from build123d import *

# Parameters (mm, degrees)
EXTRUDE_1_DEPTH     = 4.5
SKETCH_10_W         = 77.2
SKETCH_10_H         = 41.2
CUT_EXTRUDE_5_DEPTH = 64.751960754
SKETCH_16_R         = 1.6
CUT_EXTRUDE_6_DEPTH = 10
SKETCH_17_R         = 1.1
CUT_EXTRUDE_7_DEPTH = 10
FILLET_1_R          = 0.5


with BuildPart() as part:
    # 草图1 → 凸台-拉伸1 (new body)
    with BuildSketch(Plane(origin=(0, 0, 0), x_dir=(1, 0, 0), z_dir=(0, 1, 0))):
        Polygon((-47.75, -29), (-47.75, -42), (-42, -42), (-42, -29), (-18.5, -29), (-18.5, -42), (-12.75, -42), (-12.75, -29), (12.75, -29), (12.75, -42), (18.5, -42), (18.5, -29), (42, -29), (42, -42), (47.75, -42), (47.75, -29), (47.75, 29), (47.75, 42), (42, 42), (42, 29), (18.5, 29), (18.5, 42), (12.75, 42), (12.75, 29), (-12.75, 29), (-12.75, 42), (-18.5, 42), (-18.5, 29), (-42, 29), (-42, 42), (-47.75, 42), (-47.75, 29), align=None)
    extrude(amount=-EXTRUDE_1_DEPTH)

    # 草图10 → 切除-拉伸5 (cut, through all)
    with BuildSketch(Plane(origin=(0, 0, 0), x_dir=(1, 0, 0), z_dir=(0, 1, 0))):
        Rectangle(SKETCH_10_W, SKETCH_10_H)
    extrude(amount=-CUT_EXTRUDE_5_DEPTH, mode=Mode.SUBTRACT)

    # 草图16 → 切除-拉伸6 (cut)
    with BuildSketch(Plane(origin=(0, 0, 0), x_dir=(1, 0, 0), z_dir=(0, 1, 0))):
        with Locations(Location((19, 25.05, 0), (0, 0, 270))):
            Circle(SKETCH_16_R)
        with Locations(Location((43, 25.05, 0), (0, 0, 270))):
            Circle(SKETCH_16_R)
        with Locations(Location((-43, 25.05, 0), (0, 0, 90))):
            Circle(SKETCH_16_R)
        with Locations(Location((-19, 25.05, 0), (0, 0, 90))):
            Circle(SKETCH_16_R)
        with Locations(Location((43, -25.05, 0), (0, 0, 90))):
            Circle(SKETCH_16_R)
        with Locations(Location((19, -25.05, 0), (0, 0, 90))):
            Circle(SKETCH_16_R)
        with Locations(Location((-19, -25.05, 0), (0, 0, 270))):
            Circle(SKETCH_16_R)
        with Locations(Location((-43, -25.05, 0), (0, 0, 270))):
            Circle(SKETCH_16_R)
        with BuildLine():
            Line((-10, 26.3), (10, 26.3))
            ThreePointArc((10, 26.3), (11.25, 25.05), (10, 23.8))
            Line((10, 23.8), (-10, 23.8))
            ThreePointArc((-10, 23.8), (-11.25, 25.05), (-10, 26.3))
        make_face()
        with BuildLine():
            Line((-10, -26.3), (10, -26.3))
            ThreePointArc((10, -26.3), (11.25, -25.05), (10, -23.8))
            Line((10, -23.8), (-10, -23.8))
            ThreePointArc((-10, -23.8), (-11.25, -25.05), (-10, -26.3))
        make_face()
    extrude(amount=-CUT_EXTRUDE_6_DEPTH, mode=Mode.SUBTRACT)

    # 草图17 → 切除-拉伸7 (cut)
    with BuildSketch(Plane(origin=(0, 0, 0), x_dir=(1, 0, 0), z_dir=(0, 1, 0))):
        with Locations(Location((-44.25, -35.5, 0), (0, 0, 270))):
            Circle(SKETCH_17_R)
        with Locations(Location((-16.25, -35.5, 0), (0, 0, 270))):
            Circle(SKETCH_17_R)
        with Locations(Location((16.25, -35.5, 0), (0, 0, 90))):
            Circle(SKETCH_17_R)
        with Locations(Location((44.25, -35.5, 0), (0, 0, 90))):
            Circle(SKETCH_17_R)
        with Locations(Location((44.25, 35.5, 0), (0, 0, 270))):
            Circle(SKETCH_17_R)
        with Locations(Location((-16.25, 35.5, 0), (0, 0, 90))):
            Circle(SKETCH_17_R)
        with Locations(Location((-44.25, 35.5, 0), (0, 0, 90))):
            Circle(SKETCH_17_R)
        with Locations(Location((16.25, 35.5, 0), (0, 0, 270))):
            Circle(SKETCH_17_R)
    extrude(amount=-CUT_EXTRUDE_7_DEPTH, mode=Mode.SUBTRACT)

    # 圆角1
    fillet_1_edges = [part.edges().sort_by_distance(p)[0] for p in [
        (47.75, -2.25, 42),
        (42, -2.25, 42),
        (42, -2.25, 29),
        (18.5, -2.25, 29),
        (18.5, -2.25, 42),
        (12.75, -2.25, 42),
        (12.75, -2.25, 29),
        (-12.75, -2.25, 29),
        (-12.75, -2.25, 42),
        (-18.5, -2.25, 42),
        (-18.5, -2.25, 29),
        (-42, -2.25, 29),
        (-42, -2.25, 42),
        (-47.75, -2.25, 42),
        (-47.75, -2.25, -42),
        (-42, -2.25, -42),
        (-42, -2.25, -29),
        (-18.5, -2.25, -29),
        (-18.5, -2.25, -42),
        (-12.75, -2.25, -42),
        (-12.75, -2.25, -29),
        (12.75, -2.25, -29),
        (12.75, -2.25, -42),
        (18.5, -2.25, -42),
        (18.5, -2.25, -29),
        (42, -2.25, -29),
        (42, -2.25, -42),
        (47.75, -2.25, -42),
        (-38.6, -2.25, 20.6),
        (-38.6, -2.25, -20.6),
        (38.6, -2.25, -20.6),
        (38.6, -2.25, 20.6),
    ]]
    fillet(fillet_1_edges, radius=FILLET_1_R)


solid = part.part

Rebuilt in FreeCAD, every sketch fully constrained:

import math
import FreeCAD as App
import Part
import Sketcher

V = App.Vector


def edges_at(feature, points):
    """Names of the edges that pass closest to the given points."""
    edges = feature.Shape.Edges
    near = lambda p: min(range(len(edges)), key=lambda i: edges[i].distToShape(Part.Vertex(*p))[0])
    return sorted({f"Edge{near(p) + 1}" for p in points})


def add_polygon(sketch, points):
    """Adds a closed chain of lines whose ends are joined by coincident constraints."""
    first, n = sketch.GeometryCount, len(points)
    for a, b in zip(points, points[1:] + points[:1]):
        sketch.addGeometry(Part.LineSegment(App.Vector(*a, 0), App.Vector(*b, 0)), False)
    for i in range(n):
        sketch.addConstraint(Sketcher.Constraint("Coincident", first + i, 2, first + (i + 1) % n, 1))

doc = App.newDocument("Part")
body = doc.addObject("PartDesign::Body", "Body")

sketch1 = body.newObject("Sketcher::SketchObject", "Sketch")
sketch1.AttachmentSupport = (doc.getObject("XZ_Plane"), [""])
sketch1.MapMode = "FlatFace"
add_polygon(sketch1, [(-47.75, 42), (-42, 42), (-42, 29), (-18.5, 29), (-18.5, 42), (-12.75, 42), (-12.75, 29), (12.75, 29), (12.75, 42), (18.5, 42), (18.5, 29), (42, 29), (42, 42), (47.75, 42), (47.75, -42), (42, -42), (42, -29), (18.5, -29), (18.5, -42), (12.75, -42), (12.75, -29), (-12.75, -29), (-12.75, -42), (-18.5, -42), (-18.5, -29), (-42, -29), (-42, -42), (-47.75, -42)])
sketch1.addConstraint([
    Sketcher.Constraint("Horizontal", 0),
    Sketcher.Constraint("Vertical", 1),
    Sketcher.Constraint("Horizontal", 2),
    Sketcher.Constraint("Vertical", 3),
    Sketcher.Constraint("Horizontal", 4),
    Sketcher.Constraint("Vertical", 5),
    Sketcher.Constraint("Horizontal", 6),
    Sketcher.Constraint("Vertical", 7),
    Sketcher.Constraint("Horizontal", 8),
    Sketcher.Constraint("Vertical", 9),
    Sketcher.Constraint("Horizontal", 10),
    Sketcher.Constraint("Vertical", 11),
    Sketcher.Constraint("Horizontal", 12),
    Sketcher.Constraint("Vertical", 13),
    Sketcher.Constraint("Horizontal", 14),
    Sketcher.Constraint("Vertical", 15),
    Sketcher.Constraint("Horizontal", 16),
    Sketcher.Constraint("Vertical", 17),
    Sketcher.Constraint("Horizontal", 18),
    Sketcher.Constraint("Vertical", 19),
    Sketcher.Constraint("Horizontal", 20),
    Sketcher.Constraint("Vertical", 21),
    Sketcher.Constraint("Horizontal", 22),
    Sketcher.Constraint("Vertical", 23),
    Sketcher.Constraint("Horizontal", 24),
    Sketcher.Constraint("Vertical", 25),
    Sketcher.Constraint("Horizontal", 26),
    Sketcher.Constraint("Vertical", 27),
    Sketcher.Constraint("Symmetric", 0, 2, 14, 2, -1, 1),
    Sketcher.Constraint("Symmetric", 2, 2, 16, 2, -1, 1),
    Sketcher.Constraint("Symmetric", 4, 2, 18, 2, -1, 1),
    Sketcher.Constraint("Symmetric", 6, 2, 20, 2, -1, 1),
    Sketcher.Constraint("Symmetric", 8, 2, 22, 2, -1, 1),
    Sketcher.Constraint("Symmetric", 10, 2, 24, 2, -1, 1),
    Sketcher.Constraint("Symmetric", 12, 2, 26, 2, -1, 1),
    Sketcher.Constraint("Symmetric", 4, 2, 7, 2, -2),
    Sketcher.Constraint("Symmetric", 2, 2, 9, 2, -2),
    Sketcher.Constraint("Symmetric", 0, 2, 11, 2, -2),
    Sketcher.Constraint("Horizontal", 0, 2, 3, 2),
    Sketcher.Constraint("Horizontal", 2, 2, 5, 2),
    Sketcher.Constraint("Equal", 0, 4),
    Sketcher.Constraint("DistanceY", 1, 2, 1, 1, 13.0),
    Sketcher.Constraint("DistanceY", 13, 2, 13, 1, 84.0),
    Sketcher.Constraint("DistanceX", 2, 1, 2, 2, 23.5),
    Sketcher.Constraint("DistanceX", 6, 1, 6, 2, 25.5),
    Sketcher.Constraint("DistanceX", 0, 2, -1, 1, 42.0),
])
pad1 = body.newObject("PartDesign::Pad", "Pad")
pad1.Profile = sketch1
pad1.Length = 4.5

sketch2 = body.newObject("Sketcher::SketchObject", "Sketch001")
sketch2.AttachmentSupport = (doc.getObject("XZ_Plane"), [""])
sketch2.MapMode = "FlatFace"
add_polygon(sketch2, [(-38.6, -20.6), (-38.6, 20.6), (38.6, 20.6), (38.6, -20.6)])
sketch2.addConstraint([
    Sketcher.Constraint("Vertical", 0),
    Sketcher.Constraint("Horizontal", 1),
    Sketcher.Constraint("Vertical", 2),
    Sketcher.Constraint("Horizontal", 3),
    Sketcher.Constraint("Symmetric", 0, 2, 2, 2, -1, 1),
    Sketcher.Constraint("DistanceX", 1, 1, 1, 2, 77.2),
    Sketcher.Constraint("DistanceY", 0, 1, 0, 2, 41.2),
])
pocket1 = body.newObject("PartDesign::Pocket", "Pocket")
pocket1.Profile = sketch2
pocket1.Type = "ThroughAll"
pocket1.Reversed = True

sketch3 = body.newObject("Sketcher::SketchObject", "Sketch002")
sketch3.AttachmentSupport = (doc.getObject("XZ_Plane"), [""])
sketch3.MapMode = "FlatFace"
sketch3.addGeometry([
    Part.Circle(V(19, -25.05, 0), V(0, 0, 1), 1.6),
    Part.Circle(V(43, -25.05, 0), V(0, 0, 1), 1.6),
    Part.Circle(V(-43, -25.05, 0), V(0, 0, 1), 1.6),
    Part.Circle(V(-19, -25.05, 0), V(0, 0, 1), 1.6),
    Part.Circle(V(43, 25.05, 0), V(0, 0, 1), 1.6),
    Part.Circle(V(19, 25.05, 0), V(0, 0, 1), 1.6),
    Part.Circle(V(-19, 25.05, 0), V(0, 0, 1), 1.6),
    Part.Circle(V(-43, 25.05, 0), V(0, 0, 1), 1.6),
    Part.LineSegment(V(10, -26.3, 0), V(-10, -26.3, 0)),
    Part.ArcOfCircle(Part.Circle(V(-10, -25.05, 0), V(0, 0, 1), 1.25), math.radians(90), math.radians(270)),
    Part.LineSegment(V(-10, -23.8, 0), V(10, -23.8, 0)),
    Part.ArcOfCircle(Part.Circle(V(10, -25.05, 0), V(0, 0, 1), 1.25), math.radians(-90), math.radians(90)),
    Part.LineSegment(V(-10, 26.3, 0), V(10, 26.3, 0)),
    Part.ArcOfCircle(Part.Circle(V(10, 25.05, 0), V(0, 0, 1), 1.25), math.radians(-90), math.radians(90)),
    Part.LineSegment(V(10, 23.8, 0), V(-10, 23.8, 0)),
    Part.ArcOfCircle(Part.Circle(V(-10, 25.05, 0), V(0, 0, 1), 1.25), math.radians(90), math.radians(270)),
], False)
sketch3.addConstraint([
    Sketcher.Constraint("Tangent", 8, 2, 9, 2),
    Sketcher.Constraint("Tangent", 9, 1, 10, 1),
    Sketcher.Constraint("Tangent", 10, 2, 11, 2),
    Sketcher.Constraint("Tangent", 11, 1, 8, 1),
    Sketcher.Constraint("Tangent", 12, 2, 13, 2),
    Sketcher.Constraint("Tangent", 13, 1, 14, 1),
    Sketcher.Constraint("Tangent", 14, 2, 15, 2),
    Sketcher.Constraint("Tangent", 15, 1, 12, 1),
    Sketcher.Constraint("Horizontal", 8),
    Sketcher.Constraint("Horizontal", 10),
    Sketcher.Constraint("Horizontal", 12),
    Sketcher.Constraint("Horizontal", 14),
    Sketcher.Constraint("Equal", 0, 1),
    Sketcher.Constraint("Equal", 1, 2),
    Sketcher.Constraint("Equal", 2, 3),
    Sketcher.Constraint("Equal", 3, 4),
    Sketcher.Constraint("Equal", 4, 5),
    Sketcher.Constraint("Equal", 5, 6),
    Sketcher.Constraint("Equal", 6, 7),
    Sketcher.Constraint("Equal", 11, 13),
    Sketcher.Constraint("Symmetric", 2, 3, 4, 3, -1, 1),
    Sketcher.Constraint("Symmetric", 3, 3, 5, 3, -1, 1),
    Sketcher.Constraint("Symmetric", 0, 3, 6, 3, -1, 1),
    Sketcher.Constraint("Symmetric", 1, 3, 7, 3, -1, 1),
    Sketcher.Constraint("Symmetric", 9, 3, 13, 3, -1, 1),
    Sketcher.Constraint("Symmetric", 1, 3, 2, 3, -2),
    Sketcher.Constraint("Symmetric", 0, 3, 3, 3, -2),
    Sketcher.Constraint("Horizontal", 0, 3, 1, 3),
    Sketcher.Constraint("Horizontal", 3, 3, 9, 3),
    Sketcher.Constraint("Vertical", 11, 3, 13, 3),
    Sketcher.Constraint("Vertical", 9, 3, 15, 3),
    Sketcher.Constraint("Diameter", 0, 3.2),
    Sketcher.Constraint("DistanceX", 8, 2, 8, 1, 20.0),
    Sketcher.Constraint("Radius", 9, 1.25),
    Sketcher.Constraint("DistanceX", -1, 1, 0, 3, 19.0),
    Sketcher.Constraint("DistanceX", -1, 1, 1, 3, 43.0),
    Sketcher.Constraint("DistanceY", 8, 2, -1, 1, 26.3),
])
pocket2 = body.newObject("PartDesign::Pocket", "Pocket001")
pocket2.Profile = sketch3
pocket2.Length = 10
pocket2.Reversed = True

sketch4 = body.newObject("Sketcher::SketchObject", "Sketch003")
sketch4.AttachmentSupport = (doc.getObject("XZ_Plane"), [""])
sketch4.MapMode = "FlatFace"
sketch4.addGeometry([
    Part.Circle(V(-44.25, 35.5, 0), V(0, 0, 1), 1.1),
    Part.Circle(V(-16.25, 35.5, 0), V(0, 0, 1), 1.1),
    Part.Circle(V(16.25, 35.5, 0), V(0, 0, 1), 1.1),
    Part.Circle(V(44.25, 35.5, 0), V(0, 0, 1), 1.1),
    Part.Circle(V(44.25, -35.5, 0), V(0, 0, 1), 1.1),
    Part.Circle(V(-16.25, -35.5, 0), V(0, 0, 1), 1.1),
    Part.Circle(V(-44.25, -35.5, 0), V(0, 0, 1), 1.1),
    Part.Circle(V(16.25, -35.5, 0), V(0, 0, 1), 1.1),
], False)
sketch4.addConstraint([
    Sketcher.Constraint("Equal", 0, 1),
    Sketcher.Constraint("Equal", 1, 2),
    Sketcher.Constraint("Equal", 2, 3),
    Sketcher.Constraint("Equal", 3, 4),
    Sketcher.Constraint("Equal", 4, 5),
    Sketcher.Constraint("Equal", 5, 6),
    Sketcher.Constraint("Equal", 6, 7),
    Sketcher.Constraint("Symmetric", 0, 3, 4, 3, -1, 1),
    Sketcher.Constraint("Symmetric", 2, 3, 5, 3, -1, 1),
    Sketcher.Constraint("Symmetric", 3, 3, 6, 3, -1, 1),
    Sketcher.Constraint("Symmetric", 1, 3, 7, 3, -1, 1),
    Sketcher.Constraint("Symmetric", 1, 3, 2, 3, -2),
    Sketcher.Constraint("Symmetric", 0, 3, 3, 3, -2),
    Sketcher.Constraint("Horizontal", 0, 3, 1, 3),
    Sketcher.Constraint("Diameter", 0, 2.2),
    Sketcher.Constraint("DistanceX", 0, 3, 1, 3, 28.0),
    Sketcher.Constraint("DistanceY", 4, 3, 3, 3, 71.0),
    Sketcher.Constraint("DistanceX", 1, 3, 2, 3, 32.5),
])
pocket3 = body.newObject("PartDesign::Pocket", "Pocket002")
pocket3.Profile = sketch4
pocket3.Length = 10
pocket3.Reversed = True
doc.recompute()

fillet = body.newObject("PartDesign::Fillet", "Fillet")
fillet.Base = (pocket3, edges_at(pocket3, [
    (47.75, -2.25, 42),
    (42, -2.25, 42),
    (42, -2.25, 29),
    (18.5, -2.25, 29),
    (18.5, -2.25, 42),
    (12.75, -2.25, 42),
    (12.75, -2.25, 29),
    (-12.75, -2.25, 29),
    (-12.75, -2.25, 42),
    (-18.5, -2.25, 42),
    (-18.5, -2.25, 29),
    (-42, -2.25, 29),
    (-42, -2.25, 42),
    (-47.75, -2.25, 42),
    (-47.75, -2.25, -42),
    (-42, -2.25, -42),
    (-42, -2.25, -29),
    (-18.5, -2.25, -29),
    (-18.5, -2.25, -42),
    (-12.75, -2.25, -42),
    (-12.75, -2.25, -29),
    (12.75, -2.25, -29),
    (12.75, -2.25, -42),
    (18.5, -2.25, -42),
    (18.5, -2.25, -29),
    (42, -2.25, -29),
    (42, -2.25, -42),
    (47.75, -2.25, -42),
    (-38.6, -2.25, 20.6),
    (-38.6, -2.25, -20.6),
    (38.6, -2.25, -20.6),
    (38.6, -2.25, 20.6),
]))
fillet.Radius = 0.5

doc.recompute()
